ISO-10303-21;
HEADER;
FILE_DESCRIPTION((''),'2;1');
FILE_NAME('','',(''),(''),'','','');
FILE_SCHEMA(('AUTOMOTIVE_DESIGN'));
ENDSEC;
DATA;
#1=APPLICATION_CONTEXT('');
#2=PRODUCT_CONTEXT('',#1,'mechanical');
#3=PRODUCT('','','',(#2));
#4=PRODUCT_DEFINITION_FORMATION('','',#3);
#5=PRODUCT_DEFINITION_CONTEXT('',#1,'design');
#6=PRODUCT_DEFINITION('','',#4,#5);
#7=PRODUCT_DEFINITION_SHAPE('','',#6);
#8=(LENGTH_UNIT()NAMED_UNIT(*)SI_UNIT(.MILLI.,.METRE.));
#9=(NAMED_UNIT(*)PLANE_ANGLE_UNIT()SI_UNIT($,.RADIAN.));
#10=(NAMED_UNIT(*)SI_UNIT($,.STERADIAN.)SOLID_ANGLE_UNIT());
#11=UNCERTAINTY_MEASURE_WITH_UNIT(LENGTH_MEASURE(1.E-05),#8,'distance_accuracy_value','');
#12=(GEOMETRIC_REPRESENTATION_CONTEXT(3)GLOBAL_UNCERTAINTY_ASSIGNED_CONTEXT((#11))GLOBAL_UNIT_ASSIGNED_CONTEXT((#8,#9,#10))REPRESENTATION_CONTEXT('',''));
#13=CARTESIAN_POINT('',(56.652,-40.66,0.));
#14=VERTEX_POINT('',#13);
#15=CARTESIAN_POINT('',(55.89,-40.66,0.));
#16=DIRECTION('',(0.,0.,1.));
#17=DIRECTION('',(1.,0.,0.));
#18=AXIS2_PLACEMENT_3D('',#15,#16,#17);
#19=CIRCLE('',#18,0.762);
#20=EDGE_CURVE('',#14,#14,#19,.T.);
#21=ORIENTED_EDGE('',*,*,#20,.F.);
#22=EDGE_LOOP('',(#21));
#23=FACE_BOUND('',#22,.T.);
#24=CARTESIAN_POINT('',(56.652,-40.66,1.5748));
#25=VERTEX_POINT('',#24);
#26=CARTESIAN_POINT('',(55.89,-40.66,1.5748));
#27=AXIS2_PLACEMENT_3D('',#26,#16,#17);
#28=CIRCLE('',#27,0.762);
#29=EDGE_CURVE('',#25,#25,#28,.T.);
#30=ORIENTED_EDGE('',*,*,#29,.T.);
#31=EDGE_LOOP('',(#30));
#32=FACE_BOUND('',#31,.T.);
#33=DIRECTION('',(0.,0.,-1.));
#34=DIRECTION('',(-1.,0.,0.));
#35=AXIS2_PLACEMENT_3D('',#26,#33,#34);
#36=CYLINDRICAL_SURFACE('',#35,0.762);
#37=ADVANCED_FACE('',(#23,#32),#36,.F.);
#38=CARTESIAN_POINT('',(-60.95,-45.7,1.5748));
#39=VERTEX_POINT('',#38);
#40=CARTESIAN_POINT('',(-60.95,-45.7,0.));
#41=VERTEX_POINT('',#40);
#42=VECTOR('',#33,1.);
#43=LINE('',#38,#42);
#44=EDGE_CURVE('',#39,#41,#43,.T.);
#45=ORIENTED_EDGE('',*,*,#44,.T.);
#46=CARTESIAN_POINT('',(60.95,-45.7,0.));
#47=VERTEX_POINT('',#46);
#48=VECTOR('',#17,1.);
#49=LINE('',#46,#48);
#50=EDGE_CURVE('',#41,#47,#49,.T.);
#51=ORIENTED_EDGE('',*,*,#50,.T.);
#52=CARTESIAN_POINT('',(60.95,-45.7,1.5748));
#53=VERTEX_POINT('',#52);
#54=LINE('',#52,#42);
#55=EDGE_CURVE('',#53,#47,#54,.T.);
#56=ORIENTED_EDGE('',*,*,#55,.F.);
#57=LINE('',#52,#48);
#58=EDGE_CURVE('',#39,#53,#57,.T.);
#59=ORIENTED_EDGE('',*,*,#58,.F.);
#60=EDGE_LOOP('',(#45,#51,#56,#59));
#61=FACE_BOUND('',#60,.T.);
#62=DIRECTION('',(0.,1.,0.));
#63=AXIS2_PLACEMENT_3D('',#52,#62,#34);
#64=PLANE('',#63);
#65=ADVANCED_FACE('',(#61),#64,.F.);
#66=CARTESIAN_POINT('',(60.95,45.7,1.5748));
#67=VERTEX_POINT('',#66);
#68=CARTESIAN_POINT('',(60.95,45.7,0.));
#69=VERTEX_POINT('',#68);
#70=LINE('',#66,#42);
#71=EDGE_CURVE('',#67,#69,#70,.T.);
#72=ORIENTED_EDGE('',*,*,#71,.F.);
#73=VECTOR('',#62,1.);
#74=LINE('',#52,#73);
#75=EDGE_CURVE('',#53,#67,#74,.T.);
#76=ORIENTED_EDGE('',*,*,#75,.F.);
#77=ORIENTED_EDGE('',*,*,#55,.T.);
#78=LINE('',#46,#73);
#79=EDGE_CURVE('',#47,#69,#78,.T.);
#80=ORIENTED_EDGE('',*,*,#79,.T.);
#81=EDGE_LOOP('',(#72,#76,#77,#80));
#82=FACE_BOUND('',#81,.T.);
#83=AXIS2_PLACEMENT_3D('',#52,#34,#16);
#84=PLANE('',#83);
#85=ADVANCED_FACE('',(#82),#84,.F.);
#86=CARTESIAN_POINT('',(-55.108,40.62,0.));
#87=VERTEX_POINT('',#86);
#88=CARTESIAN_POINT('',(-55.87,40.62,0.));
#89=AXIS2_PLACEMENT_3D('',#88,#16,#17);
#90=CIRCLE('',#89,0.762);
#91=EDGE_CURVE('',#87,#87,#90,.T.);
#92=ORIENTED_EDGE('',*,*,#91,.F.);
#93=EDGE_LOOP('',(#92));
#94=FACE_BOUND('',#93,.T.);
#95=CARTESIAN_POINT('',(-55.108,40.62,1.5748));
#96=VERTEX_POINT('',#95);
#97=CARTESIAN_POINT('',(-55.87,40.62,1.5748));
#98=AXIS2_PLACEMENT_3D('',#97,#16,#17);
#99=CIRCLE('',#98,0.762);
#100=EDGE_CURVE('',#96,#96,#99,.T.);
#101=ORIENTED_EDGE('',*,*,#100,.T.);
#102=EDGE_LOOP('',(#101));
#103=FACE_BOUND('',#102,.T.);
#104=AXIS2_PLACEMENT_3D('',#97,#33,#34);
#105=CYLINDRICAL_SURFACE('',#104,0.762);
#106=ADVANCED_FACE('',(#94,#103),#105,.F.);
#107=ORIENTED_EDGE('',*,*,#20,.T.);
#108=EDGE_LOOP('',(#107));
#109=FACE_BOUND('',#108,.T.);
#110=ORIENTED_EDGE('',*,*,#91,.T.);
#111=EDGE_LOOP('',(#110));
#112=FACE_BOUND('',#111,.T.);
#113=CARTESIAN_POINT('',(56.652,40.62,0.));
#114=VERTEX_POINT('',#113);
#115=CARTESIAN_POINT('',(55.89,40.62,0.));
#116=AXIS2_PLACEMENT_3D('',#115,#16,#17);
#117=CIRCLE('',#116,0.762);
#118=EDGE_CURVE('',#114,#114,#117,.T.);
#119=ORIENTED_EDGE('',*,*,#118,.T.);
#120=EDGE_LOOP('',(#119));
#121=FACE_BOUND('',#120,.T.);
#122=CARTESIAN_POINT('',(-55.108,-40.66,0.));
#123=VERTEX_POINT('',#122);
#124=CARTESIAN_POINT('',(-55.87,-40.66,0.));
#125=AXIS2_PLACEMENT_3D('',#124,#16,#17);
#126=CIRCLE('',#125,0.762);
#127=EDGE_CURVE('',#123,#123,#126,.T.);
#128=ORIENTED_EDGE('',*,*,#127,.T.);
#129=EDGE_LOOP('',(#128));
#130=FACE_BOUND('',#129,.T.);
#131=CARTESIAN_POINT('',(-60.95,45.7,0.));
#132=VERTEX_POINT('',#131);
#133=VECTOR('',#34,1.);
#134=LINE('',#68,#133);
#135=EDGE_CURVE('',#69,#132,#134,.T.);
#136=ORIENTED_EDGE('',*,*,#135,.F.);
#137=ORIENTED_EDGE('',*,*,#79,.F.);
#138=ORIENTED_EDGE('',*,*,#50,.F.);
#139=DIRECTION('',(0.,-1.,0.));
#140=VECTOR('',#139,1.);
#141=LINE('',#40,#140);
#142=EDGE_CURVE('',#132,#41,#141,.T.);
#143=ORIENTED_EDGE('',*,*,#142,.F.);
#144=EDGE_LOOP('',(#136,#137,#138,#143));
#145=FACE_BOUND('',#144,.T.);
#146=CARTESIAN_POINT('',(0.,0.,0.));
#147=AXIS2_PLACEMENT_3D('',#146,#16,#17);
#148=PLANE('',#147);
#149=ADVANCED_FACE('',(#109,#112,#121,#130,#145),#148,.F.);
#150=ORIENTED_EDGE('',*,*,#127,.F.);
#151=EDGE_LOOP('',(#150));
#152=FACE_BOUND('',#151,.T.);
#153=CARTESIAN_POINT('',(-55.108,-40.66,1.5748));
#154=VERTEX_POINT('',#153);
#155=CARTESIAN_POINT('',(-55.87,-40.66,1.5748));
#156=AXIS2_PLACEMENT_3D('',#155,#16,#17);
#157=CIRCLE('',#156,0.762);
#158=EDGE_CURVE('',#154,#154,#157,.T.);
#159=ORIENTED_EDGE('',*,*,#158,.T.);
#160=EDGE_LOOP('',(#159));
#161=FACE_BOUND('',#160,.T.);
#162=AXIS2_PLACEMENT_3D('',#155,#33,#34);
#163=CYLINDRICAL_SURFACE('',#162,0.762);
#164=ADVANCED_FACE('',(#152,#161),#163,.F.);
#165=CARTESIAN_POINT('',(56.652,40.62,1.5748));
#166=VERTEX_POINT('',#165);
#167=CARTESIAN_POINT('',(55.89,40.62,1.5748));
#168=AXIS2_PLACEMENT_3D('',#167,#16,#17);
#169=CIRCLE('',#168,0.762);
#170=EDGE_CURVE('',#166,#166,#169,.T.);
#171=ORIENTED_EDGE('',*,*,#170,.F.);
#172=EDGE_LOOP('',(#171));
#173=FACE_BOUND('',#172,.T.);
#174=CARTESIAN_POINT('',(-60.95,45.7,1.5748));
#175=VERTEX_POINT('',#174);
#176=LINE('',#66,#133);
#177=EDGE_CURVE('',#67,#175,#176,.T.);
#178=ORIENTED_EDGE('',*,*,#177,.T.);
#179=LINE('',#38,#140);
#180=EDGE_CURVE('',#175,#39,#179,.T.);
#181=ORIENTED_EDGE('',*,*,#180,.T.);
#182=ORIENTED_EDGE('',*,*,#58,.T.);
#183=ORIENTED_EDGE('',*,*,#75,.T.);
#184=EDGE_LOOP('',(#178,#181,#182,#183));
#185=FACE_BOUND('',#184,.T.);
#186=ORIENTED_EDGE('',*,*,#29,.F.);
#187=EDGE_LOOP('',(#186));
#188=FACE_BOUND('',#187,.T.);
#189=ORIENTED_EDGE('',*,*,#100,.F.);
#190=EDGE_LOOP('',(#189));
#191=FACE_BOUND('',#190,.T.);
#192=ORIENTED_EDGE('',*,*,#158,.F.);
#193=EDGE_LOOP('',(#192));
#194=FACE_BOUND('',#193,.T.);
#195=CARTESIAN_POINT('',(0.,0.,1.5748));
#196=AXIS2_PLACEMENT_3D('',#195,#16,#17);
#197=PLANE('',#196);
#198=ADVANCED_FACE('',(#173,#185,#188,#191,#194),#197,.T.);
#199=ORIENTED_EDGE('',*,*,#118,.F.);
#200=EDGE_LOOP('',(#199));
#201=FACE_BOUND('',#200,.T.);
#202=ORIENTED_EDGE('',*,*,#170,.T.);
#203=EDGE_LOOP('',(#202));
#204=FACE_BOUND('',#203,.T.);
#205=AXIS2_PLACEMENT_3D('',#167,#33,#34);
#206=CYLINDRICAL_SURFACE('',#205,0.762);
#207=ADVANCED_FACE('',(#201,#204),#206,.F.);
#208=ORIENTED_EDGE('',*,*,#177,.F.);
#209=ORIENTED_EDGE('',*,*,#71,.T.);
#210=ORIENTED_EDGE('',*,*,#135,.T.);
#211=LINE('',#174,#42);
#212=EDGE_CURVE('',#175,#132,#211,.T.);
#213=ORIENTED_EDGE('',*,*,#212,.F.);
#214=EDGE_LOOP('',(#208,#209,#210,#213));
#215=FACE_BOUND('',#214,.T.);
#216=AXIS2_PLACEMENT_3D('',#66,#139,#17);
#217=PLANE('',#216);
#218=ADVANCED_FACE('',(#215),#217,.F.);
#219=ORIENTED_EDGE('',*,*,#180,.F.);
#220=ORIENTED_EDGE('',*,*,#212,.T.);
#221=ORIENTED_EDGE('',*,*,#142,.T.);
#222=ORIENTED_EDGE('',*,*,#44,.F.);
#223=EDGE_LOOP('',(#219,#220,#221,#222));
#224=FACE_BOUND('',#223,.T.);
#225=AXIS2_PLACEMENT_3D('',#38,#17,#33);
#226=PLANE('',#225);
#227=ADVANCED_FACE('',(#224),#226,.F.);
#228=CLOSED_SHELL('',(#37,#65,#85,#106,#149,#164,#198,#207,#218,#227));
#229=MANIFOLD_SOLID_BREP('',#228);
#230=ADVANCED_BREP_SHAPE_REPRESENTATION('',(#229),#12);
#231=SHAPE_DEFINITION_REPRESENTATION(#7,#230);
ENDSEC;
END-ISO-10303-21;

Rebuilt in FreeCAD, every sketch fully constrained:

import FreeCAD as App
import Part
import Sketcher
from FreeCAD import Vector

doc = App.newDocument("Part")
body = doc.addObject("PartDesign::Body", "Body")

# Sketch on XY plane
sketch1 = body.newObject("Sketcher::SketchObject", "Sketch")
sketch1.AttachmentSupport = (doc.getObject("XY_Plane"), [""])
sketch1.MapMode = "FlatFace"
sketch1.addGeometry([
    Part.LineSegment(Vector(-61, 45.7, 0), Vector(-61, -45.7, 0)),  # 0
    Part.LineSegment(Vector(-61, -45.7, 0), Vector(61, -45.7, 0)),  # 1
    Part.LineSegment(Vector(61, -45.7, 0), Vector(61, 45.7, 0)),  # 2
    Part.LineSegment(Vector(61, 45.7, 0), Vector(-61, 45.7, 0)),  # 3
    Part.Circle(Vector(-55.9, -40.7, 0), Vector(0, 0, 1), 0.8),  # 4
    Part.Circle(Vector(55.9, -40.7, 0), Vector(0, 0, 1), 0.8),  # 5
    Part.Circle(Vector(-55.9, 40.6, 0), Vector(0, 0, 1), 0.8),  # 6
    Part.Circle(Vector(55.9, 40.6, 0), Vector(0, 0, 1), 0.8),  # 7
], False)
sketch1.addConstraint([
    Sketcher.Constraint("Coincident", 0, 2, 1, 1),
    Sketcher.Constraint("Coincident", 1, 2, 2, 1),
    Sketcher.Constraint("Coincident", 2, 2, 3, 1),
    Sketcher.Constraint("Coincident", 3, 2, 0, 1),
    Sketcher.Constraint("Vertical", 0),
    Sketcher.Constraint("Horizontal", 1),
    Sketcher.Constraint("Vertical", 2),
    Sketcher.Constraint("Horizontal", 3),
    Sketcher.Constraint("Equal", 4, 5),
    Sketcher.Constraint("Equal", 5, 6),
    Sketcher.Constraint("Equal", 6, 7),
    Sketcher.Constraint("Symmetric", 0, 2, 2, 2, -1, 1),
    Sketcher.Constraint("Horizontal", 4, 3, 5, 3),
    Sketcher.Constraint("Horizontal", 6, 3, 7, 3),
    Sketcher.Constraint("Vertical", 4, 3, 6, 3),
    Sketcher.Constraint("Vertical", 5, 3, 7, 3),
    Sketcher.Constraint("Diameter", 4, 1.524),
    Sketcher.Constraint("DistanceX", 1, 1, 1, 2, 121.9),
    Sketcher.Constraint("DistanceY", 0, 2, 0, 1, 91.4),
    Sketcher.Constraint("DistanceX", 4, 3, -1, 1, 55.87),
    Sketcher.Constraint("DistanceY", 4, 3, -1, 1, 40.66),
    Sketcher.Constraint("DistanceX", -1, 1, 5, 3, 55.89),
    Sketcher.Constraint("DistanceY", -1, 1, 6, 3, 40.62),
])
pad1 = body.newObject("PartDesign::Pad", "Pad")
pad1.Profile = sketch1
pad1.Length = 1.5748

doc.recompute()
